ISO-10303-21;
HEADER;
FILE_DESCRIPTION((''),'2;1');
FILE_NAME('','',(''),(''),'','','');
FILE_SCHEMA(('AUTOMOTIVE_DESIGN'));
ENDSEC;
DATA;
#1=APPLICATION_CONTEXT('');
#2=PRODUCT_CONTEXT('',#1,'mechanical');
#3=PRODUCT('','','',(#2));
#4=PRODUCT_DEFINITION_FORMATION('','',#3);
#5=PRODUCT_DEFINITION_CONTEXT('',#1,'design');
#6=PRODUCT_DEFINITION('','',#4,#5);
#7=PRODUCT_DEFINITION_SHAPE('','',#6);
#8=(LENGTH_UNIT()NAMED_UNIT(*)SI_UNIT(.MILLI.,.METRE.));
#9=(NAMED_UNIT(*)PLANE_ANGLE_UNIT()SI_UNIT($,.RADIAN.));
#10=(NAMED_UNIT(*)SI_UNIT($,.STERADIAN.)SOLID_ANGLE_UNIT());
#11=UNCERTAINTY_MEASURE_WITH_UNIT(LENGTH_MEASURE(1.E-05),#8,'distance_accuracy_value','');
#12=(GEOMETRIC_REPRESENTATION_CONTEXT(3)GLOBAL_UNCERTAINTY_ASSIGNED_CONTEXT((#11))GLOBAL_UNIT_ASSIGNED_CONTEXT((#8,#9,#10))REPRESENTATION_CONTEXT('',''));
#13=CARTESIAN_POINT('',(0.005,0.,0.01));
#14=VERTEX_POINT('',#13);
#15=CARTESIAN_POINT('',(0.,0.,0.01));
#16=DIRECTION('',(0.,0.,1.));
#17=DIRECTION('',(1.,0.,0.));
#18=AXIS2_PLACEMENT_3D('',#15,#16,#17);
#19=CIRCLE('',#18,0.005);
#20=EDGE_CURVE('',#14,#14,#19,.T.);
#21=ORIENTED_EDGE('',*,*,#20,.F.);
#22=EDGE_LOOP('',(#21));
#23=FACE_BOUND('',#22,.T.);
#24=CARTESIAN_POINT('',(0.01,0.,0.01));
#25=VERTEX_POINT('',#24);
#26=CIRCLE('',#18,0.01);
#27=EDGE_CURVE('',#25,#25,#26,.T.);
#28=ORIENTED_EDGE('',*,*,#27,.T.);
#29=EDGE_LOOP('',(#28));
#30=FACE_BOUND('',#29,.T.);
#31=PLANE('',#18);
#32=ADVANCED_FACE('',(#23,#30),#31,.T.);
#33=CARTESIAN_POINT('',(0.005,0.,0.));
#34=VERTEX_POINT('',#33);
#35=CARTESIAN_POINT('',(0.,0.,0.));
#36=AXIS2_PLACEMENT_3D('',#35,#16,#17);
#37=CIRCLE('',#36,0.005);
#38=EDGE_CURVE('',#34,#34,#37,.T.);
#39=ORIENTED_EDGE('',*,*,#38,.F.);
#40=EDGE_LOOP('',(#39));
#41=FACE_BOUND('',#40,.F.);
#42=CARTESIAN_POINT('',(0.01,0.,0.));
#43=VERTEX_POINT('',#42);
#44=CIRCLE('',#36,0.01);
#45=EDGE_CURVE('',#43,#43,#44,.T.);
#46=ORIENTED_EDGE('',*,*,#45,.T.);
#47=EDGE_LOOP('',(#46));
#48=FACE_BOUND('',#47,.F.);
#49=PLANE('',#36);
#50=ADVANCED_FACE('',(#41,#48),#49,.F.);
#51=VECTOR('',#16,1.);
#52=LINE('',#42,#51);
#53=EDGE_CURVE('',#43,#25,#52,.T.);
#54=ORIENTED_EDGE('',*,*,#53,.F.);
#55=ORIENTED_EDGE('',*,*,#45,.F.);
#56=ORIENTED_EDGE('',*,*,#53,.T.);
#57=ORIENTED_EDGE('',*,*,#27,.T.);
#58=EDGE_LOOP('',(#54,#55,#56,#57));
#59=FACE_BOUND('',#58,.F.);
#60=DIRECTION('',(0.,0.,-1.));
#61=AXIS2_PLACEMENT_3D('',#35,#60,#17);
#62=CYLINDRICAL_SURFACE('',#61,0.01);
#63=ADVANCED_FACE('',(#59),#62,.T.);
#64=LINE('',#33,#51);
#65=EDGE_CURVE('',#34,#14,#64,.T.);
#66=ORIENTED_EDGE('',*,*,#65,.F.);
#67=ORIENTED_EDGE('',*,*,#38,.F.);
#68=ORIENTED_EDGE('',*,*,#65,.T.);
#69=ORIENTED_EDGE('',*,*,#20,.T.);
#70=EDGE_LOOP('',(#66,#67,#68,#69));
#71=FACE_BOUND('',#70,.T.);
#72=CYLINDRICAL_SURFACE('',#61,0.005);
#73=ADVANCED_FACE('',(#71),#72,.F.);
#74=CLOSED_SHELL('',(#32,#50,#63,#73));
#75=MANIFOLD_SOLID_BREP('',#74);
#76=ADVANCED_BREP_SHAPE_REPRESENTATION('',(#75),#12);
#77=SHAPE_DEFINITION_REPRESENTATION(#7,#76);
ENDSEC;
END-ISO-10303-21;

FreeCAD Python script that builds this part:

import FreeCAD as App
import Part
import Sketcher

V = App.Vector

doc = App.newDocument("Part")
body = doc.addObject("PartDesign::Body", "Body")

# Sketch on XY plane
sketch1 = body.newObject("Sketcher::SketchObject", "Sketch")
sketch1.AttachmentSupport = (doc.getObject("XY_Plane"), [""])
sketch1.MapMode = "FlatFace"
sketch1.addGeometry([
    Part.Circle(V(0, 0, 0), V(0, 0, 1), 0.01),
    Part.Circle(V(0, 0, 0), V(0, 0, 1), 0.005),
], False)
sketch1.addConstraint([
    Sketcher.Constraint("Coincident", 0, 3, -1, 1),
    Sketcher.Constraint("Coincident", 1, 3, -1, 1),
    Sketcher.Constraint("Diameter", 0, 0.02),
    Sketcher.Constraint("Diameter", 1, 0.01),
])
pad1 = body.newObject("PartDesign::Pad", "Pad")
pad1.Profile = sketch1
pad1.Length = 0.01

doc.recompute()
